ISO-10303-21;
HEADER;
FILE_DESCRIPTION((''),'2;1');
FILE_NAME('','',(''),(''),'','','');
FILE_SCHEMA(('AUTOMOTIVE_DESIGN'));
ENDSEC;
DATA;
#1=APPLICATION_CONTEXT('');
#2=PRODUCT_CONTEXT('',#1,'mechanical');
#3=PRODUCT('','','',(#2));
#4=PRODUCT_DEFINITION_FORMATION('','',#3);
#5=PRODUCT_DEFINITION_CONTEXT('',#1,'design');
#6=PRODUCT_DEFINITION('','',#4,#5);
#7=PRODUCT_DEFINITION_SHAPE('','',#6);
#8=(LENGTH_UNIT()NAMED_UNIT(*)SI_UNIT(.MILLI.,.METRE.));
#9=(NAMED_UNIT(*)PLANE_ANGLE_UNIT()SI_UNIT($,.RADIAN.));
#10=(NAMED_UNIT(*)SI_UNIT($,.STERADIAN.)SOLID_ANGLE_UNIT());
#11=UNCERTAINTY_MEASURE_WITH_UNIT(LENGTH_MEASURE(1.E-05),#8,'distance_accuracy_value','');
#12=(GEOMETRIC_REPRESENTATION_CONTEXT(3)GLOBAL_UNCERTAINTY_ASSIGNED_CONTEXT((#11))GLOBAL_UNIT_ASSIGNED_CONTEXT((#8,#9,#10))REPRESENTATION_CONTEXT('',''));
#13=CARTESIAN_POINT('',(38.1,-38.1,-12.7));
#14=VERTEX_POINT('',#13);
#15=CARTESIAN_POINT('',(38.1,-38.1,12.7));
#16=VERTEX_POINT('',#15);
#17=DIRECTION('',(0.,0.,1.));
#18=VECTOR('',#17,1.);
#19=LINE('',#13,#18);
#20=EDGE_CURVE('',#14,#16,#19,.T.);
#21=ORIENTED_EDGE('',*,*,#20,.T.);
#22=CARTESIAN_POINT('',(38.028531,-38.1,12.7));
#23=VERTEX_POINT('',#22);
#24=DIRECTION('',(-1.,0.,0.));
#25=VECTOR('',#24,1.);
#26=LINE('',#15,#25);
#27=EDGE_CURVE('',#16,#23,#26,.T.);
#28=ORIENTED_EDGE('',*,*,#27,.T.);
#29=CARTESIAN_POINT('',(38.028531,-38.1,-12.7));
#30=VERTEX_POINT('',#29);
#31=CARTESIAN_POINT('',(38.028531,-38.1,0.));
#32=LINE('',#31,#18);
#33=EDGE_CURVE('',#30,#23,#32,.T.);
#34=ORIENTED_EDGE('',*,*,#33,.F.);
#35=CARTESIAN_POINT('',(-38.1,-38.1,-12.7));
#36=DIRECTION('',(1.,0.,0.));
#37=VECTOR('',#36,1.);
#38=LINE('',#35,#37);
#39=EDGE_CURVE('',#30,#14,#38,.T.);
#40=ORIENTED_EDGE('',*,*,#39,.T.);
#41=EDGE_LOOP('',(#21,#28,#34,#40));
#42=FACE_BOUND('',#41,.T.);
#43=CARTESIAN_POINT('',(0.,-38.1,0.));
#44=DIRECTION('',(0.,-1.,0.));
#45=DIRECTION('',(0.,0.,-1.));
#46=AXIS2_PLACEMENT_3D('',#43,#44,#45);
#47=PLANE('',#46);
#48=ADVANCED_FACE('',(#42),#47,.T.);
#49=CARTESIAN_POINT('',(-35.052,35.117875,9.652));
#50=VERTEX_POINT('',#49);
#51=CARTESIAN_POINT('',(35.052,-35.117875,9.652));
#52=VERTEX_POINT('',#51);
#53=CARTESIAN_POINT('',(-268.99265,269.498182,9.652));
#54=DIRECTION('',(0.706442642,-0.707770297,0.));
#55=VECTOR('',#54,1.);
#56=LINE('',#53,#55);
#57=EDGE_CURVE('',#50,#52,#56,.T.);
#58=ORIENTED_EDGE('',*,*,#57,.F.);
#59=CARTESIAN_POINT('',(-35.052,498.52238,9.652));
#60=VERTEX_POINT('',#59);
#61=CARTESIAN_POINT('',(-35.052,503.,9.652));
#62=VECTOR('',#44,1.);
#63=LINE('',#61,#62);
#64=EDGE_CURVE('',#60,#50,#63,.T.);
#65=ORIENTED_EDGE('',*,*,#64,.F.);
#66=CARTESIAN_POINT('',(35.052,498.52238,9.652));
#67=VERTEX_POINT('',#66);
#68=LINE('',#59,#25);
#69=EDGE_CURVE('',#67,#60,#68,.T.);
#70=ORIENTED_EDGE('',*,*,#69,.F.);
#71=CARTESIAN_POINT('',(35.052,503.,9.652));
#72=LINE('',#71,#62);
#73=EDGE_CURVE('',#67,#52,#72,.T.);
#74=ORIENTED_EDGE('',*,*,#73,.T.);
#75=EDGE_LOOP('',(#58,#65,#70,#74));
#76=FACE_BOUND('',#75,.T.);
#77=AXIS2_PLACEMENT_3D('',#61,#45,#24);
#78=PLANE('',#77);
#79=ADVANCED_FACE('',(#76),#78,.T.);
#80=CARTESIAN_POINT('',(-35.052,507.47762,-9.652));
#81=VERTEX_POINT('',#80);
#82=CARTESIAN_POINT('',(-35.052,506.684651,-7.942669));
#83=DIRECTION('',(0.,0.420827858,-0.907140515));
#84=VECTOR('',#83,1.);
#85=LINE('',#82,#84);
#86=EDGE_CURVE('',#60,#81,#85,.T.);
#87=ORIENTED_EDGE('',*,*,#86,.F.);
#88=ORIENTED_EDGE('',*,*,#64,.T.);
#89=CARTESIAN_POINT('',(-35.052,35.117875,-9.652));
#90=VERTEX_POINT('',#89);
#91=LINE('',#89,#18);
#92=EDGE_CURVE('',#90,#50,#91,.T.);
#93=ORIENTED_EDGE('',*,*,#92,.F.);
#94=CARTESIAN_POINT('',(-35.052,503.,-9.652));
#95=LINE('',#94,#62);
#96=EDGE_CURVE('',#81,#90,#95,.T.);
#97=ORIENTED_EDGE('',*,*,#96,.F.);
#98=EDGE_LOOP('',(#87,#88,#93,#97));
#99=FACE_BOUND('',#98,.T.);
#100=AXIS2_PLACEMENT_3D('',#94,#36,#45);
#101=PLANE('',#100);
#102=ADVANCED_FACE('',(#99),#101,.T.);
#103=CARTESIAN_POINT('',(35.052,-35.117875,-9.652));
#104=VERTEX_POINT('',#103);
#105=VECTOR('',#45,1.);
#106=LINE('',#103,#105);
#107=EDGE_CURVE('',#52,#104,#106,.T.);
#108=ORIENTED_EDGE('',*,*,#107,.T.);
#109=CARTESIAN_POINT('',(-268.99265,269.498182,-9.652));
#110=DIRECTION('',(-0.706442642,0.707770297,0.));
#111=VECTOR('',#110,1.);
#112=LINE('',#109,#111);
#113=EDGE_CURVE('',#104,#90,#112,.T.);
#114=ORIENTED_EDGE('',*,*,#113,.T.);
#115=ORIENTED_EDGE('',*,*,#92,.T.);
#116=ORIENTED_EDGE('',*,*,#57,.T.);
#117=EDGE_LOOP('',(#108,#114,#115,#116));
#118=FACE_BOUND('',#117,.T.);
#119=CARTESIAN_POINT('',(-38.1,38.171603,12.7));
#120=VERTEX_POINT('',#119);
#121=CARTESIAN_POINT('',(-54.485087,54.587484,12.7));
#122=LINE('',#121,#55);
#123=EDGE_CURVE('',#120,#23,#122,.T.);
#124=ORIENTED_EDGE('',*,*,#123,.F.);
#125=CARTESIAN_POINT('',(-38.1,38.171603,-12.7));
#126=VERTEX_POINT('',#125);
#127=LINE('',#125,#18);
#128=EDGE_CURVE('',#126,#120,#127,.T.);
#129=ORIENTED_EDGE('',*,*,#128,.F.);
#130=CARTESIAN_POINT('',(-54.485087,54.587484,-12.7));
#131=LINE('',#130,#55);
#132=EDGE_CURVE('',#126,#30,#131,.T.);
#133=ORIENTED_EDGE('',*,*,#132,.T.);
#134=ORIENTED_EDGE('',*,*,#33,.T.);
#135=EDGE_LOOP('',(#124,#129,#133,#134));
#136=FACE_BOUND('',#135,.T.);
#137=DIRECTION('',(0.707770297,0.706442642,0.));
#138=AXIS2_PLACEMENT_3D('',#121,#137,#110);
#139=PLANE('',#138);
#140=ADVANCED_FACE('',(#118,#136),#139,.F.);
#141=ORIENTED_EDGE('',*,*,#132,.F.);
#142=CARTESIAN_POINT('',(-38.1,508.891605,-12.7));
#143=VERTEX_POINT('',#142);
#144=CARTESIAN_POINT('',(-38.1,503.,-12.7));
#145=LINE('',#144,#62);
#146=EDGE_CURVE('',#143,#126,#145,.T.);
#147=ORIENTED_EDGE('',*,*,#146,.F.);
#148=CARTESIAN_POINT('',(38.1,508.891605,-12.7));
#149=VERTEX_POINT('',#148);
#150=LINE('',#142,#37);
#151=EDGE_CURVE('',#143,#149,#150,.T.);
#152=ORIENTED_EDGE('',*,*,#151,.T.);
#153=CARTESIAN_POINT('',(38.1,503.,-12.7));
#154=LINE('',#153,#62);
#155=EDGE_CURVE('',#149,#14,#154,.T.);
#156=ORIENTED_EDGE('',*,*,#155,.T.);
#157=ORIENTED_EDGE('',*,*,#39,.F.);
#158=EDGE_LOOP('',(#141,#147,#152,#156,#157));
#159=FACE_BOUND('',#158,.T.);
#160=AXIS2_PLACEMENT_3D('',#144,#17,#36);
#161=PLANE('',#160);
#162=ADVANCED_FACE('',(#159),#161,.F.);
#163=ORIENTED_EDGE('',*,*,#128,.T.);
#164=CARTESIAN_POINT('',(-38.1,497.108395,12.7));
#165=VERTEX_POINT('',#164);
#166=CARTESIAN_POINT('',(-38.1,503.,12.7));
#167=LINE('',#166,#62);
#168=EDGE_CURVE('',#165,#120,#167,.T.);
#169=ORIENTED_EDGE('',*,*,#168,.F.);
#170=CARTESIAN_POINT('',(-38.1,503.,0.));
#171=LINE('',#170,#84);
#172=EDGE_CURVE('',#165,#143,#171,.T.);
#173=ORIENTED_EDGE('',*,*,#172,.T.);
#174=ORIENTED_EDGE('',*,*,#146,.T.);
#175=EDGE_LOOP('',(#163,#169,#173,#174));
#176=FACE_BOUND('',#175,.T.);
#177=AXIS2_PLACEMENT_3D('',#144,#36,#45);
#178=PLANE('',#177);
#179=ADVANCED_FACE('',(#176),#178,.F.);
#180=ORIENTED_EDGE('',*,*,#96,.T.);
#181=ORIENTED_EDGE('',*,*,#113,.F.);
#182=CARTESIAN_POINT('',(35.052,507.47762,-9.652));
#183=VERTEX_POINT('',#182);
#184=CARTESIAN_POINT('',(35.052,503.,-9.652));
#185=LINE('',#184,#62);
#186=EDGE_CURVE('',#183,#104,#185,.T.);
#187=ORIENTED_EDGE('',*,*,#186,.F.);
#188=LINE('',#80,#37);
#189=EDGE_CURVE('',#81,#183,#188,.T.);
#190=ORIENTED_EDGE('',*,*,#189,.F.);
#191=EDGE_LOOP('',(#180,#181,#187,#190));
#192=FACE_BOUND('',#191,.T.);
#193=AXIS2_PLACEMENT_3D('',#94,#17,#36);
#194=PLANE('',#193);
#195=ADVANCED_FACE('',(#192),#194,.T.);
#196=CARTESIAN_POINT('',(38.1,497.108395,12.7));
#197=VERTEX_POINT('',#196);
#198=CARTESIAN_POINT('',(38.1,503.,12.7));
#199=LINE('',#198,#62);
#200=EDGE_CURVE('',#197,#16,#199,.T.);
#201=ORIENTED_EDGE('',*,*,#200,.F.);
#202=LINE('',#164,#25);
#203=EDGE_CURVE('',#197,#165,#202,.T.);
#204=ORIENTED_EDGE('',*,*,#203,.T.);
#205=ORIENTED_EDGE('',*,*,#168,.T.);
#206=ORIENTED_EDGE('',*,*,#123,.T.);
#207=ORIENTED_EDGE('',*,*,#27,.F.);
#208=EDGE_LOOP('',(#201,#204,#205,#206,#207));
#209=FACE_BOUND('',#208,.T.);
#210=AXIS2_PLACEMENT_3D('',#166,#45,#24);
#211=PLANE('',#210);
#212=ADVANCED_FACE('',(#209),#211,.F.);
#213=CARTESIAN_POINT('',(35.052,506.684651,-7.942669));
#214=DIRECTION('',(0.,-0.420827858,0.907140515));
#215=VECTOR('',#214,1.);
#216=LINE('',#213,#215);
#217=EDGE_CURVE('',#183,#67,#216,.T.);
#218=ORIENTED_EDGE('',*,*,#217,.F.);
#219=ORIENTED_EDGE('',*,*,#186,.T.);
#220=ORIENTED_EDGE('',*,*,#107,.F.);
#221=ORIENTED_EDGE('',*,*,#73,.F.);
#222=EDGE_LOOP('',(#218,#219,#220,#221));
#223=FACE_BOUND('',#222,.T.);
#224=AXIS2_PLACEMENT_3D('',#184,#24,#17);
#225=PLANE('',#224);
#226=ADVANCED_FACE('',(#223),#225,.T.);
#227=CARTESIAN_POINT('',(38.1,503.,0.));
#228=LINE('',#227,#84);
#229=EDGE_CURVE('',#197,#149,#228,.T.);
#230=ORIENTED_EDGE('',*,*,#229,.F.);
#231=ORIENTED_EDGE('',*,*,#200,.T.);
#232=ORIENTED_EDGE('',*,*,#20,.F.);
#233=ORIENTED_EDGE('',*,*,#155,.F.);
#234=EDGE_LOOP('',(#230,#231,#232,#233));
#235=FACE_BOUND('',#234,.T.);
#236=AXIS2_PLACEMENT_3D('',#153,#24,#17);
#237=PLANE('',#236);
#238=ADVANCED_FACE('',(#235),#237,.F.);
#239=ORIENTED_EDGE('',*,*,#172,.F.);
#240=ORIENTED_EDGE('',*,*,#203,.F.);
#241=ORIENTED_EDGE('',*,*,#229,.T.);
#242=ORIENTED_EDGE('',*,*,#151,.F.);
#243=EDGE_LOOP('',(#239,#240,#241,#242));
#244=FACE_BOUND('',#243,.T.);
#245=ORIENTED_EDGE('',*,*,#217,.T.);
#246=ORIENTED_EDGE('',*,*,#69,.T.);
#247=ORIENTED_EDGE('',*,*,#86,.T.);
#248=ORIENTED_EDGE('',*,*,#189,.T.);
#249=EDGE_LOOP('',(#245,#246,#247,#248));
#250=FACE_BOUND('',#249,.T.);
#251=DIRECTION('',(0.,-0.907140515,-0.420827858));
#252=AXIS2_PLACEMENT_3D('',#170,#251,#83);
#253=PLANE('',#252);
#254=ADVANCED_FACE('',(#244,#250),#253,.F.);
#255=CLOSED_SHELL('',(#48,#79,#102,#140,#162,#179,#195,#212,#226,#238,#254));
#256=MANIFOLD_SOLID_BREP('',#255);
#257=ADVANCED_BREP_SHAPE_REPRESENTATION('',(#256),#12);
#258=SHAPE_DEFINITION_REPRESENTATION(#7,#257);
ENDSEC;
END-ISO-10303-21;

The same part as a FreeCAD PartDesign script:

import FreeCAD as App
import Part
import Sketcher
from FreeCAD import Vector
Q = App.Units.Quantity


def add_polygon(sketch, points):
    """Adds a closed chain of lines whose ends are joined by coincident constraints."""
    first, n = sketch.GeometryCount, len(points)
    for a, b in zip(points, points[1:] + points[:1]):
        sketch.addGeometry(Part.LineSegment(App.Vector(*a, 0), App.Vector(*b, 0)), False)
    for i in range(n):
        sketch.addConstraint(Sketcher.Constraint("Coincident", first + i, 2, first + (i + 1) % n, 1))

doc = App.newDocument("Part")
body = doc.addObject("PartDesign::Body", "Body")

# Sketch on XZ plane
sketch1 = body.newObject("Sketcher::SketchObject", "Sketch")
sketch1.AttachmentSupport = (doc.getObject("XZ_Plane"), [""])
sketch1.MapMode = "FlatFace"
add_polygon(sketch1, [(-38, -13), (-38, 13), (38, 13), (38, -13)])  # lines 0-3
add_polygon(sketch1, [(35, 10), (-35, 10), (-35, -10), (35, -10)])  # lines 4-7
sketch1.addConstraint([
    Sketcher.Constraint("Vertical", 0),
    Sketcher.Constraint("Horizontal", 1),
    Sketcher.Constraint("Vertical", 2),
    Sketcher.Constraint("Horizontal", 3),
    Sketcher.Constraint("Horizontal", 4),
    Sketcher.Constraint("Vertical", 5),
    Sketcher.Constraint("Horizontal", 6),
    Sketcher.Constraint("Vertical", 7),
    Sketcher.Constraint("Symmetric", 0, 2, 2, 2, -1, 1),
    Sketcher.Constraint("Symmetric", 4, 2, 6, 2, -1, 1),
    Sketcher.Constraint("DistanceX", 1, 1, 1, 2, Q("3 in")),
    Sketcher.Constraint("DistanceY", 0, 1, 0, 2, Q("1 in")),
    Sketcher.Constraint("DistanceX", 4, 2, 4, 1, Q("2.76 in")),
    Sketcher.Constraint("DistanceY", 5, 2, 5, 1, Q("0.76 in")),
])
pad1 = body.newObject("PartDesign::Pad", "Pad")
pad1.Profile = sketch1
pad1.Length = 503
pad1.Reversed = True

# Sketch on XZ plane
sketch2 = body.newObject("Sketcher::SketchObject", "Sketch001")
sketch2.AttachmentSupport = (doc.getObject("XZ_Plane"), [""])
sketch2.MapMode = "FlatFace"
add_polygon(sketch2, [(-38, 13), (-38, -13), (38, -13), (38, 13)])  # lines 0-3
add_polygon(sketch2, [(35, -10), (-35, -10), (-35, 10), (35, 10)])  # lines 4-7
sketch2.addConstraint([
    Sketcher.Constraint("Vertical", 0),
    Sketcher.Constraint("Horizontal", 1),
    Sketcher.Constraint("Vertical", 2),
    Sketcher.Constraint("Horizontal", 3),
    Sketcher.Constraint("Horizontal", 4),
    Sketcher.Constraint("Vertical", 5),
    Sketcher.Constraint("Horizontal", 6),
    Sketcher.Constraint("Vertical", 7),
    Sketcher.Constraint("Symmetric", 0, 2, 2, 2, -1, 1),
    Sketcher.Constraint("Symmetric", 4, 2, 6, 2, -1, 1),
    Sketcher.Constraint("DistanceX", 1, 1, 1, 2, Q("3 in")),
    Sketcher.Constraint("DistanceY", 0, 2, 0, 1, Q("1 in")),
    Sketcher.Constraint("DistanceX", 4, 2, 4, 1, Q("2.76 in")),
    Sketcher.Constraint("DistanceY", 5, 1, 5, 2, Q("0.76 in")),
])
pad2 = body.newObject("PartDesign::Pad", "Pad001")
pad2.Profile = sketch2
pad2.Length = Q("1.5 in")

# Sketch on XY plane
sketch3 = body.newObject("Sketcher::SketchObject", "Sketch002")
sketch3.AttachmentSupport = (doc.getObject("XY_Plane"), [""])
sketch3.MapMode = "FlatFace"
add_polygon(sketch3, [(-54, 55), (43, -43), (-48, -134), (-146, -37)])  # lines 0-3
sketch3.addConstraint([
    Sketcher.Constraint("Perpendicular", 0, 1),
    Sketcher.Constraint("Perpendicular", 1, 2),
    Sketcher.Constraint("Perpendicular", 2, 3),
    Sketcher.Constraint("DistanceY", 1, 2, 0, 2, Q("91.130402 mm")),
    Sketcher.Constraint("Distance", 1, Q("128.99901 mm")),
    Sketcher.Constraint("DistanceX", -1, 1, 0, 2, Q("43.279429 mm")),
    Sketcher.Constraint("DistanceY", 1, 2, -1, 1, Q("134.491168 mm")),
    Sketcher.Constraint("DistanceY", 2, 2, -1, 1, Q("36.542918 mm")),
])
pocket1 = body.newObject("PartDesign::Pocket", "Pocket")
pocket1.Profile = sketch3
pocket1.Type = "ThroughAll"
pocket1.Midplane = True

# Sketch on XZ plane
sketch4 = body.newObject("Sketcher::SketchObject", "Sketch003")
sketch4.AttachmentSupport = (doc.getObject("XZ_Plane"), [""])
sketch4.MapMode = "FlatFace"
sketch4.AttachmentOffset = App.Placement(Vector(0, 0, -503), App.Rotation())
add_polygon(sketch4, [(-38, -13), (-38, 13), (38, 13), (38, -13)])  # lines 0-3
add_polygon(sketch4, [(35, 10), (-35, 10), (-35, -10), (35, -10)])  # lines 4-7
sketch4.addConstraint([
    Sketcher.Constraint("Vertical", 0),
    Sketcher.Constraint("Horizontal", 1),
    Sketcher.Constraint("Vertical", 2),
    Sketcher.Constraint("Horizontal", 3),
    Sketcher.Constraint("Horizontal", 4),
    Sketcher.Constraint("Vertical", 5),
    Sketcher.Constraint("Horizontal", 6),
    Sketcher.Constraint("Vertical", 7),
    Sketcher.Constraint("Symmetric", 0, 2, 2, 2, -1, 1),
    Sketcher.Constraint("Symmetric", 4, 2, 6, 2, -1, 1),
    Sketcher.Constraint("DistanceX", 1, 1, 1, 2, Q("3 in")),
    Sketcher.Constraint("DistanceY", 0, 1, 0, 2, Q("1 in")),
    Sketcher.Constraint("DistanceX", 4, 2, 4, 1, Q("2.76 in")),
    Sketcher.Constraint("DistanceY", 5, 2, 5, 1, Q("0.76 in")),
])
pad3 = body.newObject("PartDesign::Pad", "Pad002")
pad3.Profile = sketch4
pad3.Length = Q("1.5 in")
pad3.Reversed = True

# Sketch on YZ plane
sketch5 = body.newObject("Sketcher::SketchObject", "Sketch004")
sketch5.AttachmentSupport = (doc.getObject("YZ_Plane"), [""])
sketch5.MapMode = "FlatFace"
sketch5.AttachmentOffset = App.Placement(Vector(0, 0, 1.5 * 25.4), App.Rotation())
add_polygon(sketch5, [(487, 34), (503, 0), (528, -54), (603, -16), (581, 34)])  # lines 0-4
sketch5.addConstraint([
    Sketcher.Constraint("PointOnObject", 0, 2, -1),
    Sketcher.Constraint("Parallel", 0, 1),
    Sketcher.Constraint("Distance", 1, Q("59.0784 mm")),
    Sketcher.Constraint("Distance", 3, Q("54.4583 mm")),
    Sketcher.Constraint("DistanceX", -1, 1, 0, 2, Q("503 mm")),
    Sketcher.Constraint("DistanceY", 2, 2, 3, 2, Q("49.8745 mm")),
    Sketcher.Constraint("DistanceY", 1, 2, -1, 1, Q("53.59241 mm")),
    Sketcher.Constraint("DistanceX", -1, 1, 2, 2, Q("602.541381 mm")),
    Sketcher.Constraint("DistanceX", 4, 2, 3, 2, Q("93.38641 mm")),
    Sketcher.Constraint("DistanceY", 4, 2, 3, 2, Q("0.094982 mm")),
])
pocket2 = body.newObject("PartDesign::Pocket", "Pocket001")
pocket2.Profile = sketch5
pocket2.Type = "ThroughAll"

doc.recompute()
